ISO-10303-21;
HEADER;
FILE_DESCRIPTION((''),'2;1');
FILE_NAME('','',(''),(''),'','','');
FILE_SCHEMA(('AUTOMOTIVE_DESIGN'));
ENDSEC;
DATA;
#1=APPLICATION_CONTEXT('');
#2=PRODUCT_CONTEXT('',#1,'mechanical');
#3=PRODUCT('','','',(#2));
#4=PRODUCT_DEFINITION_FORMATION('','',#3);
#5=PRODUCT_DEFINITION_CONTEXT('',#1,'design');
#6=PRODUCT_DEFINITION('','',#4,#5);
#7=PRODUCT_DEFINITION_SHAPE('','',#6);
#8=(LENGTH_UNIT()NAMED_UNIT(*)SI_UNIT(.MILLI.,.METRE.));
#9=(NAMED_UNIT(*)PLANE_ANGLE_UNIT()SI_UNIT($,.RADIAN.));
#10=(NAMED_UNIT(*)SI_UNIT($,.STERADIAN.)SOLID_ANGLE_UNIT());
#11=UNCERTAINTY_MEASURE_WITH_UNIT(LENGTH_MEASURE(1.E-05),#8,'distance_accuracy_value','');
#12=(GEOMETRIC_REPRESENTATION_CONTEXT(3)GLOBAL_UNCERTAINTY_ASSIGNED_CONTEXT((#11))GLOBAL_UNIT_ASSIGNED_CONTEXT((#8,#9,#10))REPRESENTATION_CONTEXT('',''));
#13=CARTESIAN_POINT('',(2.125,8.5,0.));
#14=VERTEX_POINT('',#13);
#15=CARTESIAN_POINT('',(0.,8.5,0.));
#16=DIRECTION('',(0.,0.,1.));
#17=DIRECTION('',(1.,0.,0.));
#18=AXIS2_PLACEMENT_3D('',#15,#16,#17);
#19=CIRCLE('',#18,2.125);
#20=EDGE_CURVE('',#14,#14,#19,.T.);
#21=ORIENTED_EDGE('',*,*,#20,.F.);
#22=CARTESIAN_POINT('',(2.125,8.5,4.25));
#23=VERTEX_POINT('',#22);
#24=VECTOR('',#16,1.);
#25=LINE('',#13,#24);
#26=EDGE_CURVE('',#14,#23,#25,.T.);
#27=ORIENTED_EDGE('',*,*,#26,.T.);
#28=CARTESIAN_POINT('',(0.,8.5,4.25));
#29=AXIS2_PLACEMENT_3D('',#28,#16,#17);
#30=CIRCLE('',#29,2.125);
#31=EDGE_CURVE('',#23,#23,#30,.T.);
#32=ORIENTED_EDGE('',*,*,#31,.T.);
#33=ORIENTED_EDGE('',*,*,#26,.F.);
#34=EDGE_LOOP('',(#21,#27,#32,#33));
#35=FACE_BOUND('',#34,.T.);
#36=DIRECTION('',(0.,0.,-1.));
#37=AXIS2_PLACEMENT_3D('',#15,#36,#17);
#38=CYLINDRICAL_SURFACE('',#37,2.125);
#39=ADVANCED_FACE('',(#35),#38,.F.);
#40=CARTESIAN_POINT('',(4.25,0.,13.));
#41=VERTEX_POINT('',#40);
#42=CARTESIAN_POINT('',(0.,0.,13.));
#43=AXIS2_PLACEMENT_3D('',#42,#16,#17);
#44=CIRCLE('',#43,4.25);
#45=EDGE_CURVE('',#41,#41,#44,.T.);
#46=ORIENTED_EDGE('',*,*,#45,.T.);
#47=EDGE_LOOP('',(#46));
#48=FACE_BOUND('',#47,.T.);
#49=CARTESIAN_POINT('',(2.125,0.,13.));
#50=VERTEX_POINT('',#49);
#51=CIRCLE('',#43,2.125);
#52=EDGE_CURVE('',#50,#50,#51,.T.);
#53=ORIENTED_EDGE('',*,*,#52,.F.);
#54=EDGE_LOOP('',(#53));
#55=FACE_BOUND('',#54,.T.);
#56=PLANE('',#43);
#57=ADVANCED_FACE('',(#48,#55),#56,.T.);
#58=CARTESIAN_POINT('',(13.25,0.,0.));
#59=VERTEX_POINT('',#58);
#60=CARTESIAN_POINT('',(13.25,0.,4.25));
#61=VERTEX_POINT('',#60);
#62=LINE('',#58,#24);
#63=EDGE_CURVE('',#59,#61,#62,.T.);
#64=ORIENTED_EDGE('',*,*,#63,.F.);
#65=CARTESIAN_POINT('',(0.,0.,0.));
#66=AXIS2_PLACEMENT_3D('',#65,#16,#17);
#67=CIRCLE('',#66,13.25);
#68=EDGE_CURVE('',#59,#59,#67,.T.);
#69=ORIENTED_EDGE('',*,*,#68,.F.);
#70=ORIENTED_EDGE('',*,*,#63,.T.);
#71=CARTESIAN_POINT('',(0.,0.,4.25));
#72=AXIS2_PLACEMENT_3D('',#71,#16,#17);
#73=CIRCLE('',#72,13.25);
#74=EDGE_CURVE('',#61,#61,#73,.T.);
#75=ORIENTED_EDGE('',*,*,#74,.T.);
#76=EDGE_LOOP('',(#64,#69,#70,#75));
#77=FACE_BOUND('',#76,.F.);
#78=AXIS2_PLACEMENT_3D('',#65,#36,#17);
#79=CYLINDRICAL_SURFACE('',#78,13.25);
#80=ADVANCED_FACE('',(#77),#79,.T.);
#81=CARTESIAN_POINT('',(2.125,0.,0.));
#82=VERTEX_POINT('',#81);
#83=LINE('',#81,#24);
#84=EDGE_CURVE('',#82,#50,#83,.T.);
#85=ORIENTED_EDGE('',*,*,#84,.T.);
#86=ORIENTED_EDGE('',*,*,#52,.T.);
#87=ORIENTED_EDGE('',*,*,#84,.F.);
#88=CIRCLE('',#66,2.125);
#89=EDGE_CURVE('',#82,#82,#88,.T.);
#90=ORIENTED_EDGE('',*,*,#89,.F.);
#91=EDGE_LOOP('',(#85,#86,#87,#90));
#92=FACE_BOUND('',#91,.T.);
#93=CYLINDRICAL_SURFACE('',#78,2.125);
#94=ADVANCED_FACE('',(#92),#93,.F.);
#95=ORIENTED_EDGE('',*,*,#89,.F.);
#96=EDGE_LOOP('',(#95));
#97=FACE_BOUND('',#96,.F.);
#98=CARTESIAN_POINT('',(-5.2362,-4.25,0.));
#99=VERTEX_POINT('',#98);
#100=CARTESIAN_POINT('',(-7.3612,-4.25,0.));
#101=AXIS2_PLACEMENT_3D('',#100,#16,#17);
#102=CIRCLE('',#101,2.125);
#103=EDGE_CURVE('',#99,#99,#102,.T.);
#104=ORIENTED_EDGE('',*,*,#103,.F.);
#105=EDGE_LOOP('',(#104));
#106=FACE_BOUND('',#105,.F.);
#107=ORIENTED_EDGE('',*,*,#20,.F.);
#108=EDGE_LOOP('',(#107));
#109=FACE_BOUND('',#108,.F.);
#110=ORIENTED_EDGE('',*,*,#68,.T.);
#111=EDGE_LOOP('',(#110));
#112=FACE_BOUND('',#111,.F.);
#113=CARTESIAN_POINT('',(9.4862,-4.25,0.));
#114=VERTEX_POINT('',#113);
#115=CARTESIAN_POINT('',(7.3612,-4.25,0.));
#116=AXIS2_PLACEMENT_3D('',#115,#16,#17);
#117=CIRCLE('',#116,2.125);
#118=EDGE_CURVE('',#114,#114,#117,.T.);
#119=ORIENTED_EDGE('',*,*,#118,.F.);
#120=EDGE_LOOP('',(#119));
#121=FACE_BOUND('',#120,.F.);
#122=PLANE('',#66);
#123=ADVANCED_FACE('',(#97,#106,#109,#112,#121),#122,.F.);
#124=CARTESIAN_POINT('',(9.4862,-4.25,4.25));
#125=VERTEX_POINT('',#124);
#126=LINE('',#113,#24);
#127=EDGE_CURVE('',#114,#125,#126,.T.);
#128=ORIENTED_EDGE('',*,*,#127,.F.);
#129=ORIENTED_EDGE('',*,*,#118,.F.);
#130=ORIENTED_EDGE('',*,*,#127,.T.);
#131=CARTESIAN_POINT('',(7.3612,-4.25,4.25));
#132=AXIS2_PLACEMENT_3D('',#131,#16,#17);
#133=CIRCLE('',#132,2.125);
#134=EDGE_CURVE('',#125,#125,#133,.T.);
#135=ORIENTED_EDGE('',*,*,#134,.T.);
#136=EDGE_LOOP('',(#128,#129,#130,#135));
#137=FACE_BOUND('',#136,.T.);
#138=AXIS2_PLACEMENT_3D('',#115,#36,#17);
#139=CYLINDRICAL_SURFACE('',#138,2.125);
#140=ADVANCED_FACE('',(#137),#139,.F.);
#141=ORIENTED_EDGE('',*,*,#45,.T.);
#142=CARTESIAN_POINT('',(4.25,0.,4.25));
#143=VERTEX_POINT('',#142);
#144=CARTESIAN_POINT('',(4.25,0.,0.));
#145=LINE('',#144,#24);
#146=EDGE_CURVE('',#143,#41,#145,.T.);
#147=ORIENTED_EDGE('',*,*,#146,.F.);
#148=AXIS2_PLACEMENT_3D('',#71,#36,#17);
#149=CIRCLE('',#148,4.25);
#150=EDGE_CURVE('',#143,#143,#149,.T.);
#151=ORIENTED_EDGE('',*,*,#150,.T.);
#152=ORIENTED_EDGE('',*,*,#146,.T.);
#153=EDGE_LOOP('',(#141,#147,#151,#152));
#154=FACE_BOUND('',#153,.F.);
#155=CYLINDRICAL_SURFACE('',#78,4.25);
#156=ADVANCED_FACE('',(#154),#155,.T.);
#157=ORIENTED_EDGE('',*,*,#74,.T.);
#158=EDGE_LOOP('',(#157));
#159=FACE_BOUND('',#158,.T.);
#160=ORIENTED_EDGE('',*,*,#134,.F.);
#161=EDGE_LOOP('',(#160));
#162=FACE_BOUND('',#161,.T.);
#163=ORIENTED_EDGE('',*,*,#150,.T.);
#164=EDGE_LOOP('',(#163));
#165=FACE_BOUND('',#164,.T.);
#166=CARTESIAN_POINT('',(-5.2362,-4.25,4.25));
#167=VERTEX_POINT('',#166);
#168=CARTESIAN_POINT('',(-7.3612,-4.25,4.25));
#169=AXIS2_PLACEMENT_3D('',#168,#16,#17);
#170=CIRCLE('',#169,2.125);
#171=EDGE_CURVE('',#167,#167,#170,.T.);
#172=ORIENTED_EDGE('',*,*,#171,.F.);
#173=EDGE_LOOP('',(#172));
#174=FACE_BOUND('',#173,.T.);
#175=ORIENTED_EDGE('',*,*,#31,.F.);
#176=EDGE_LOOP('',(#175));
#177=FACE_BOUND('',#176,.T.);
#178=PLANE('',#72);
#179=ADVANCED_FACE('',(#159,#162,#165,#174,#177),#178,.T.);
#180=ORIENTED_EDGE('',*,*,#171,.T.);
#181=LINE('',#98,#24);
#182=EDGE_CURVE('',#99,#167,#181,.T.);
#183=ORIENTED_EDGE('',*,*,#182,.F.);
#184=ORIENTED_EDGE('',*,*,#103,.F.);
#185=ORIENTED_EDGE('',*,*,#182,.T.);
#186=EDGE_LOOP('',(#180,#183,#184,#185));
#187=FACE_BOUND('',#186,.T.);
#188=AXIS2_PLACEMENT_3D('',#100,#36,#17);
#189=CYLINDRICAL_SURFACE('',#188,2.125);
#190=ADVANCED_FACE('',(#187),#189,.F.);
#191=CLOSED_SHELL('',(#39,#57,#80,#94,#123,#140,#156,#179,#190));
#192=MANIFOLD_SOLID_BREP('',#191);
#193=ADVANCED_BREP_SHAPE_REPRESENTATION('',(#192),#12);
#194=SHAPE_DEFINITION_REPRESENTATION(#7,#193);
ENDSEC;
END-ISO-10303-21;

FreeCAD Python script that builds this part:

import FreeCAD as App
import Part
import Sketcher

V = App.Vector

doc = App.newDocument("Part")
params = doc.addObject("Spreadsheet::Sheet", "Params")
for row, (alias, value) in enumerate([
    ("sketch1_diameter", "26.5 mm"),
    ("sketch1_diameter2", "4.25 mm"),
    ("pad1_length", "4.25 mm"),
    ("sketch2_diameter", "8.5 mm"),
    ("sketch2_diameter2", "4.25 mm"),
    ("pad2_length", "13 mm"),
], start=1):
    params.set(f"A{row}", alias)
    params.set(f"B{row}", "=" + value)
    params.setAlias(f"B{row}", alias)

body = doc.addObject("PartDesign::Body", "Body")

sketch1 = body.newObject("Sketcher::SketchObject", "Sketch")
sketch1.AttachmentSupport = (doc.getObject("XY_Plane"), [""])
sketch1.MapMode = "FlatFace"
sketch1.addGeometry([
    Part.Circle(V(0, 0, 0), V(0, 0, 1), 13.2),
    Part.Circle(V(-7.4, -4.2, 0), V(0, 0, 1), 2.1),
    Part.Circle(V(7.4, -4.2, 0), V(0, 0, 1), 2.1),
    Part.Circle(V(0, 8.5, 0), V(0, 0, 1), 2.1),
    Part.Circle(V(0, 0, 0), V(0, 0, 1), 2.1),
], False)
sketch1.addConstraint([
    Sketcher.Constraint("Coincident", 0, 3, -1, 1),
    Sketcher.Constraint("Coincident", 4, 3, -1, 1),
    Sketcher.Constraint("Equal", 1, 2),
    Sketcher.Constraint("Equal", 2, 3),
    Sketcher.Constraint("Equal", 3, 4),
    Sketcher.Constraint("Symmetric", 1, 3, 2, 3, -2),
    Sketcher.Constraint("PointOnObject", 3, 3, -2),
    Sketcher.Constraint("Diameter", 0, 26.5),
    Sketcher.Constraint("Diameter", 1, 4.25),
    Sketcher.Constraint("DistanceY", -1, 1, 3, 3, 8.5),
    Sketcher.Constraint("DistanceY", 1, 3, -1, 1, 4.25),
    Sketcher.Constraint("DistanceX", 1, 3, -1, 1, 7.3612),
])
sketch1.setExpression("Constraints[7]", "Params.sketch1_diameter")
sketch1.setExpression("Constraints[8]", "Params.sketch1_diameter2")
pad1 = body.newObject("PartDesign::Pad", "Pad")
pad1.Profile = sketch1
pad1.setExpression("Length", "Params.pad1_length")

sketch2 = body.newObject("Sketcher::SketchObject", "Sketch001")
sketch2.AttachmentSupport = (doc.getObject("XY_Plane"), [""])
sketch2.MapMode = "FlatFace"
sketch2.addGeometry([
    Part.Circle(V(0, 0, 0), V(0, 0, 1), 4.2),
    Part.Circle(V(0, 0, 0), V(0, 0, 1), 2.1),
], False)
sketch2.addConstraint([
    Sketcher.Constraint("Coincident", 0, 3, -1, 1),
    Sketcher.Constraint("Coincident", 1, 3, -1, 1),
    Sketcher.Constraint("Diameter", 0, 8.5),
    Sketcher.Constraint("Diameter", 1, 4.25),
])
sketch2.setExpression("Constraints[2]", "Params.sketch2_diameter")
sketch2.setExpression("Constraints[3]", "Params.sketch2_diameter2")
pad2 = body.newObject("PartDesign::Pad", "Pad001")
pad2.Profile = sketch2
pad2.setExpression("Length", "Params.pad2_length")

doc.recompute()
